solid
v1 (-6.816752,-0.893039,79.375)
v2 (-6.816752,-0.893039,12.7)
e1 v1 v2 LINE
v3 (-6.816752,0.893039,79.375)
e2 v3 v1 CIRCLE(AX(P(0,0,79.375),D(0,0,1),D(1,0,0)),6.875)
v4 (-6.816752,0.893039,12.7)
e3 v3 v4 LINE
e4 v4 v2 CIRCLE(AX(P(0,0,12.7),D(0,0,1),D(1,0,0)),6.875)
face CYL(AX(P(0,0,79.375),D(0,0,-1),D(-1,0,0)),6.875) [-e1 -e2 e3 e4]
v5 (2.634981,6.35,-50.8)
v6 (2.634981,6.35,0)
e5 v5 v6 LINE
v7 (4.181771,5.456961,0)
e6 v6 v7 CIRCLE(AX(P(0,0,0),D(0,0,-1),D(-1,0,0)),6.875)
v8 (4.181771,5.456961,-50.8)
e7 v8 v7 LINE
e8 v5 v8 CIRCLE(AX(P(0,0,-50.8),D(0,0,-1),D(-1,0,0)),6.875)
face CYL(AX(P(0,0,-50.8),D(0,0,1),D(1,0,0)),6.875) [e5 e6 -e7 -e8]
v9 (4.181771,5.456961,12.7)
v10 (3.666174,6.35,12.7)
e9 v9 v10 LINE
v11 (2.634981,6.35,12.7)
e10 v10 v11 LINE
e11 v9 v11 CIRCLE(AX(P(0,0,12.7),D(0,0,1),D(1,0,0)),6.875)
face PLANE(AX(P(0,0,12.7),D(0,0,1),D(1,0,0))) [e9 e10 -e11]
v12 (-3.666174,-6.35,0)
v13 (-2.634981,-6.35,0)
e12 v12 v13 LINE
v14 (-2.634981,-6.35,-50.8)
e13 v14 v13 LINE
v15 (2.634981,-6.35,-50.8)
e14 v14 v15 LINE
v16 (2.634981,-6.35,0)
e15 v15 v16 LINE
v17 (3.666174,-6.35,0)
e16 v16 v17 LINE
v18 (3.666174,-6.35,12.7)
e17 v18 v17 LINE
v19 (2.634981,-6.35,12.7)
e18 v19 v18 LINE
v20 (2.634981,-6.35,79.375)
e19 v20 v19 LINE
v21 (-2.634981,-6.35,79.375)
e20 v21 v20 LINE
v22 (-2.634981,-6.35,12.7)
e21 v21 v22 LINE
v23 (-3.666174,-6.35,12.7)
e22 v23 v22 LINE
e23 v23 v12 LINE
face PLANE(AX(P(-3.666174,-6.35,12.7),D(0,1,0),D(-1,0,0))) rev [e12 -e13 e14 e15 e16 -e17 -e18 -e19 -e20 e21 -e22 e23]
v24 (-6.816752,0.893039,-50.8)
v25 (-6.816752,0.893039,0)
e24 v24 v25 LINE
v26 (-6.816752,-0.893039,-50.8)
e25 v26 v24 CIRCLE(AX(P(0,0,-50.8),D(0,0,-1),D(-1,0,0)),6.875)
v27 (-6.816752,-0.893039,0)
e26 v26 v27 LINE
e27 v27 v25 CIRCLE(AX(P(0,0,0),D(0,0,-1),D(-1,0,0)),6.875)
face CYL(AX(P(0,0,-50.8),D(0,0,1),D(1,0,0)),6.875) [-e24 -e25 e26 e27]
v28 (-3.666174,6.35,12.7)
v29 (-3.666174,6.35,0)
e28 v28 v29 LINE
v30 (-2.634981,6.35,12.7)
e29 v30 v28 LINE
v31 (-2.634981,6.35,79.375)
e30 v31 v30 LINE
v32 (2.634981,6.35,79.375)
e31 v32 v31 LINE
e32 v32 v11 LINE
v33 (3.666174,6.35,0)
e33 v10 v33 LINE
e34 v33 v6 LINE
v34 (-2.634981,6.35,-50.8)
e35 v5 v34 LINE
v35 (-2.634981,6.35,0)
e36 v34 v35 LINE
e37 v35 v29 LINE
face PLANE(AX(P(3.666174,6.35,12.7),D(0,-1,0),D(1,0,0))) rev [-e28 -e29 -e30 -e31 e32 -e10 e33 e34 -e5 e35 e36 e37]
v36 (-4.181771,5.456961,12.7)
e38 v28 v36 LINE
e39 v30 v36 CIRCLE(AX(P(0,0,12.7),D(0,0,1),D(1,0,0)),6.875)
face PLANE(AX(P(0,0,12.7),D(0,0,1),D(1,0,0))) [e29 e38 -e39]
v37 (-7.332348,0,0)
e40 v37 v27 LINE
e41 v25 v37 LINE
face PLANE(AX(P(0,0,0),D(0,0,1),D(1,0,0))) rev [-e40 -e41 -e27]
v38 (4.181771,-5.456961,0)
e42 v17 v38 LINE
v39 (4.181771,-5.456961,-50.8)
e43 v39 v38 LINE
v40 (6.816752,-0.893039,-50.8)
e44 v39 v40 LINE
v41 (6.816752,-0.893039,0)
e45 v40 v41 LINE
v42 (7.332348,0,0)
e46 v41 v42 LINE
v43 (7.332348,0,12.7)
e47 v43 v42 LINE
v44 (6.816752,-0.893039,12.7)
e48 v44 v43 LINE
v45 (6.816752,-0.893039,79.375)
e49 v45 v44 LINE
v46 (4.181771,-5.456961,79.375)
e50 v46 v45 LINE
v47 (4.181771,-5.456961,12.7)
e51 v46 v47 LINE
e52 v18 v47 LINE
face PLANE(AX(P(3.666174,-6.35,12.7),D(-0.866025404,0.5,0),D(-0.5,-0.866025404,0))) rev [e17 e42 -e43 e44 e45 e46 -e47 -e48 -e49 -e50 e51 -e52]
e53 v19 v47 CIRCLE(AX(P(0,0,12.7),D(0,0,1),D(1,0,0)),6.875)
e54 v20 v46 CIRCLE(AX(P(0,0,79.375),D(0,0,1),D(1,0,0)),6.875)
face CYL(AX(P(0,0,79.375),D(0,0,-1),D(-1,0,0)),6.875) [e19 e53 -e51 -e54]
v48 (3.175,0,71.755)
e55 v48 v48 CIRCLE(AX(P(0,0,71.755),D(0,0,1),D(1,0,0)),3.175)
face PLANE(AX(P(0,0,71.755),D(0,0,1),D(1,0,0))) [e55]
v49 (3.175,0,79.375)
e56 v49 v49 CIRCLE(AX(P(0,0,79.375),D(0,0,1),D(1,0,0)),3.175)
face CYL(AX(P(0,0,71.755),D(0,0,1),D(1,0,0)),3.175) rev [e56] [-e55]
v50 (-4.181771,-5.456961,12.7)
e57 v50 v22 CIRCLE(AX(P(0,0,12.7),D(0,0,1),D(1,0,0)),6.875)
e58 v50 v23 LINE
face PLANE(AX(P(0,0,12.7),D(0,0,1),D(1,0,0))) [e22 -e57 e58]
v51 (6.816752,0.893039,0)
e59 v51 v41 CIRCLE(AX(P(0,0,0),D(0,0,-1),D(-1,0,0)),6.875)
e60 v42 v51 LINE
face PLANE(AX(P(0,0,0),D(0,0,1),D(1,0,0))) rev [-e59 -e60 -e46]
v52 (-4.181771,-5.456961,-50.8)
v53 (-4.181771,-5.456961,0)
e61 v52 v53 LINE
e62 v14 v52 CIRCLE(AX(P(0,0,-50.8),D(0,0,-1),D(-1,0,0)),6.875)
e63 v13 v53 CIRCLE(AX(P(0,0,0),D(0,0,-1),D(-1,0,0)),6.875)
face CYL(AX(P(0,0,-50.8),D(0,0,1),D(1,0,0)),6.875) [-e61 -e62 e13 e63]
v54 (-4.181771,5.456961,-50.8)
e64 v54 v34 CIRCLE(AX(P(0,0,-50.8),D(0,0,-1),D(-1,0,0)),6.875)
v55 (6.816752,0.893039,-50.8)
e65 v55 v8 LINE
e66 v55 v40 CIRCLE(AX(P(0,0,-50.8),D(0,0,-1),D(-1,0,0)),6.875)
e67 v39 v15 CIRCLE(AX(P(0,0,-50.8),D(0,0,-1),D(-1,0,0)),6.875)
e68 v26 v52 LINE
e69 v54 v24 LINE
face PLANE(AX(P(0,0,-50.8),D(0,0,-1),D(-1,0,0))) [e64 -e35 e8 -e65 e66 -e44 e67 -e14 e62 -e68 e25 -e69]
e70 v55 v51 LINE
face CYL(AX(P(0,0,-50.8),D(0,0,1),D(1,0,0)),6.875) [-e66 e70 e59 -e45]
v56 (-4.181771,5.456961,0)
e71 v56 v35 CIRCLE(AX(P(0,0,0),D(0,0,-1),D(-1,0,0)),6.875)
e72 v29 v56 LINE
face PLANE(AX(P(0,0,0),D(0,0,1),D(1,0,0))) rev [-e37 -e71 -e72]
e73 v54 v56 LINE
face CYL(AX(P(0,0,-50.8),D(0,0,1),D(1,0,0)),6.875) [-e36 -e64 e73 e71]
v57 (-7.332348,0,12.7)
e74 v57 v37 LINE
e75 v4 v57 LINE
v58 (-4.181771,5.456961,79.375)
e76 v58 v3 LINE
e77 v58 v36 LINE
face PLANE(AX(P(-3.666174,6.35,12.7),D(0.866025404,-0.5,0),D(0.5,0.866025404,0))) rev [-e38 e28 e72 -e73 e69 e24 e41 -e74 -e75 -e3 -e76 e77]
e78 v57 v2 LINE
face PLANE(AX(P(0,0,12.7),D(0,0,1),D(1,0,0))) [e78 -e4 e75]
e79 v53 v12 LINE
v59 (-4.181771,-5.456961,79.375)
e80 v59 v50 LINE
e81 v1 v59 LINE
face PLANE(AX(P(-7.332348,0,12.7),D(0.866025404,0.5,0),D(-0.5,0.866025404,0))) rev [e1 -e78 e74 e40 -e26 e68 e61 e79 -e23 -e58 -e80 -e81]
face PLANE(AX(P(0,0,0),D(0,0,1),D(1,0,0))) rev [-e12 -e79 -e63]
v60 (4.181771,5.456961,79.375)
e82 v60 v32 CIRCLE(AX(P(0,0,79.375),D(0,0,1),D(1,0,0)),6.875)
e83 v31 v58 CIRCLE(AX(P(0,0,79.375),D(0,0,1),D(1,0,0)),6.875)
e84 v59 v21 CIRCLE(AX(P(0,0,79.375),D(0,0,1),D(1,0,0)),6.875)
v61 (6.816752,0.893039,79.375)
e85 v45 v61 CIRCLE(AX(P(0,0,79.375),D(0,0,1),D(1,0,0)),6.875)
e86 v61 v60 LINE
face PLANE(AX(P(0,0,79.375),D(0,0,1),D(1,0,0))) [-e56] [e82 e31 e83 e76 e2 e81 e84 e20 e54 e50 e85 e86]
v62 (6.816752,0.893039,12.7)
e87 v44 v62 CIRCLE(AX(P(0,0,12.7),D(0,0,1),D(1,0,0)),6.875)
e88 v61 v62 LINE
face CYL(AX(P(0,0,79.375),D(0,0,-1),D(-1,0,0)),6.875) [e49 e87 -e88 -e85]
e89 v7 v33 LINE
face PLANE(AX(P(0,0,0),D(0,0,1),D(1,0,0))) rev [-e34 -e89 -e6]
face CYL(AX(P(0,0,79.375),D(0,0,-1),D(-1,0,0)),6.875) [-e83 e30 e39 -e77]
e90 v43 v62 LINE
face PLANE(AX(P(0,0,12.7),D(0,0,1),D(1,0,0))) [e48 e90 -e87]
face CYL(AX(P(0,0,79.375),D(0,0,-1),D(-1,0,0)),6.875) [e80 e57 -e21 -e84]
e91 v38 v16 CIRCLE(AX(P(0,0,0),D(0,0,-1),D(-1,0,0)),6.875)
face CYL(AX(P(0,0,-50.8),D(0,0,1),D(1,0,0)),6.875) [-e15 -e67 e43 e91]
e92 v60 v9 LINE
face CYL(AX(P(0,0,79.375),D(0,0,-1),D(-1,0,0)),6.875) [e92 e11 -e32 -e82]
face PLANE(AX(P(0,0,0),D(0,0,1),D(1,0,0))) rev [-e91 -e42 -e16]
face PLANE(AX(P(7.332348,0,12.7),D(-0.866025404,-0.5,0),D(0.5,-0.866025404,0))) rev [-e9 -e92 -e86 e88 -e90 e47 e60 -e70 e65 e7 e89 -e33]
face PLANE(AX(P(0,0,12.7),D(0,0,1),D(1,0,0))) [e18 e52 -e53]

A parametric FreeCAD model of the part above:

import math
import FreeCAD as App
import Part
import Sketcher

V = App.Vector
Q = App.Units.Quantity


def add_polygon(sketch, points):
    """Adds a closed chain of lines whose ends are joined by coincident constraints."""
    first, n = sketch.GeometryCount, len(points)
    for a, b in zip(points, points[1:] + points[:1]):
        sketch.addGeometry(Part.LineSegment(App.Vector(*a, 0), App.Vector(*b, 0)), False)
    for i in range(n):
        sketch.addConstraint(Sketcher.Constraint("Coincident", first + i, 2, first + (i + 1) % n, 1))

doc = App.newDocument("Part")
body = doc.addObject("PartDesign::Body", "Body")

sketch1 = body.newObject("Sketcher::SketchObject", "Sketch")
sketch1.AttachmentSupport = (doc.getObject("XY_Plane"), [""])
sketch1.MapMode = "FlatFace"
add_polygon(sketch1, [(4, -6), (7, 0), (4, 6), (-4, 6), (-7, 0), (-4, -6)])
sketch1.addConstraint([
    Sketcher.Constraint("Horizontal", 2),
    Sketcher.Constraint("Horizontal", 5),
    Sketcher.Constraint("Symmetric", 0, 2, 3, 2, -1, 1),
    Sketcher.Constraint("Symmetric", 1, 2, 4, 2, -1, 1),
    Sketcher.Constraint("PointOnObject", 0, 2, -1),
    Sketcher.Constraint("Parallel", 0, 3),
    Sketcher.Constraint("Vertical", 2, 2, 4, 2),
    Sketcher.Constraint("Angle", 0, Q("60 deg")),
    Sketcher.Constraint("DistanceY", 4, 2, 2, 2, Q("0.5 in")),
    Sketcher.Constraint("DistanceX", 2, 2, 2, 1, Q("7.332348 mm")),
])
pad1 = body.newObject("PartDesign::Pad", "Pad")
pad1.Profile = sketch1
pad1.Length = Q("0.5 in")

sketch2 = body.newObject("Sketcher::SketchObject", "Sketch001")
sketch2.AttachmentSupport = (doc.getObject("XY_Plane"), [""])
sketch2.MapMode = "FlatFace"
sketch2.AttachmentOffset = App.Placement(V(0, 0, 0.5 * 25.4), App.Rotation())
sketch2.addGeometry([
    Part.LineSegment(V(-6.8, -0.9, 0), V(-4.2, -5.5, 0)),
    Part.ArcOfCircle(Part.Circle(V(0, 0, 0), V(0, 0, 1), 6.9), math.radians(-127.46), math.radians(-112.54)),
    Part.LineSegment(V(-2.6, -6.3, 0), V(2.6, -6.3, 0)),
    Part.ArcOfCircle(Part.Circle(V(0, 0, 0), V(0, 0, 1), 6.9), math.radians(-67.46), math.radians(-52.54)),
    Part.LineSegment(V(4.2, -5.5, 0), V(6.8, -0.9, 0)),
    Part.ArcOfCircle(Part.Circle(V(0, 0, 0), V(0, 0, 1), 6.9), math.radians(-7.46), math.radians(7.46)),
    Part.LineSegment(V(6.8, 0.9, 0), V(4.2, 5.5, 0)),
    Part.ArcOfCircle(Part.Circle(V(0, 0, 0), V(0, 0, 1), 6.9), math.radians(52.54), math.radians(67.46)),
    Part.LineSegment(V(2.6, 6.3, 0), V(-2.6, 6.3, 0)),
    Part.ArcOfCircle(Part.Circle(V(0, 0, 0), V(0, 0, 1), 6.9), math.radians(112.54), math.radians(127.46)),
    Part.LineSegment(V(-4.2, 5.5, 0), V(-6.8, 0.9, 0)),
    Part.ArcOfCircle(Part.Circle(V(0, 0, 0), V(0, 0, 1), 6.9), math.radians(172.54), math.radians(187.46)),
], False)
sketch2.addConstraint([
    Sketcher.Constraint("Coincident", 0, 2, 1, 1),
    Sketcher.Constraint("Coincident", 1, 2, 2, 1),
    Sketcher.Constraint("Coincident", 2, 2, 3, 1),
    Sketcher.Constraint("Coincident", 3, 2, 4, 1),
    Sketcher.Constraint("Coincident", 4, 2, 5, 1),
    Sketcher.Constraint("Coincident", 5, 2, 6, 1),
    Sketcher.Constraint("Coincident", 6, 2, 7, 1),
    Sketcher.Constraint("Coincident", 7, 2, 8, 1),
    Sketcher.Constraint("Coincident", 8, 2, 9, 1),
    Sketcher.Constraint("Coincident", 9, 2, 10, 1),
    Sketcher.Constraint("Coincident", 10, 2, 11, 1),
    Sketcher.Constraint("Coincident", 11, 2, 0, 1),
    Sketcher.Constraint("Horizontal", 2),
    Sketcher.Constraint("Horizontal", 8),
    Sketcher.Constraint("Coincident", 1, 3, -1, 1),
    Sketcher.Constraint("Coincident", 3, 3, -1, 1),
    Sketcher.Constraint("Coincident", 5, 3, -1, 1),
    Sketcher.Constraint("Coincident", 7, 3, -1, 1),
    Sketcher.Constraint("Coincident", 9, 3, -1, 1),
    Sketcher.Constraint("Coincident", 11, 3, -1, 1),
    Sketcher.Constraint("Equal", 1, 3),
    Sketcher.Constraint("Equal", 3, 5),
    Sketcher.Constraint("Equal", 5, 7),
    Sketcher.Constraint("Equal", 7, 9),
    Sketcher.Constraint("Equal", 9, 11),
    Sketcher.Constraint("Parallel", 0, 6),
    Sketcher.Constraint("Parallel", 4, 10),
    Sketcher.Constraint("Horizontal", 0, 2, 3, 2),
    Sketcher.Constraint("Horizontal", 6, 2, 9, 2),
    Sketcher.Constraint("Horizontal", 5, 2, 10, 2),
    Sketcher.Constraint("Vertical", 4, 2, 5, 2),
    Sketcher.Constraint("Vertical", 2, 2, 7, 2),
    Sketcher.Constraint("Angle", 0, Q("-60 deg")),
    Sketcher.Constraint("DistanceY", 1, 2, -1, 1, Q("0.25 in")),
    Sketcher.Constraint("Radius", 1, Q("6.875 mm")),
    Sketcher.Constraint("DistanceY", 3, 2, 5, 2, Q("0.25 in")),
])
pad2 = body.newObject("PartDesign::Pad", "Pad001")
pad2.Profile = sketch2
pad2.Length = Q("2.625 in")

sketch3 = body.newObject("Sketcher::SketchObject", "Sketch002")
sketch3.AttachmentSupport = (doc.getObject("XY_Plane"), [""])
sketch3.MapMode = "FlatFace"
sketch3.addGeometry([
    Part.LineSegment(V(6.8, -0.9, 0), V(4.2, -5.5, 0)),
    Part.ArcOfCircle(Part.Circle(V(0, 0, 0), V(0, 0, 1), 6.9), math.radians(-67.46), math.radians(-52.54)),
    Part.LineSegment(V(2.6, -6.3, 0), V(-2.6, -6.3, 0)),
    Part.ArcOfCircle(Part.Circle(V(0, 0, 0), V(0, 0, 1), 6.9), math.radians(-127.46), math.radians(-112.54)),
    Part.LineSegment(V(-4.2, -5.5, 0), V(-6.8, -0.9, 0)),
    Part.ArcOfCircle(Part.Circle(V(0, 0, 0), V(0, 0, 1), 6.9), math.radians(172.54), math.radians(187.46)),
    Part.LineSegment(V(-6.8, 0.9, 0), V(-4.2, 5.5, 0)),
    Part.ArcOfCircle(Part.Circle(V(0, 0, 0), V(0, 0, 1), 6.9), math.radians(112.54), math.radians(127.46)),
    Part.LineSegment(V(-2.6, 6.3, 0), V(2.6, 6.3, 0)),
    Part.ArcOfCircle(Part.Circle(V(0, 0, 0), V(0, 0, 1), 6.9), math.radians(52.54), math.radians(67.46)),
    Part.LineSegment(V(4.2, 5.5, 0), V(6.8, 0.9, 0)),
    Part.ArcOfCircle(Part.Circle(V(0, 0, 0), V(0, 0, 1), 6.9), math.radians(-7.46), math.radians(7.46)),
], False)
sketch3.addConstraint([
    Sketcher.Constraint("Coincident", 0, 2, 1, 2),
    Sketcher.Constraint("Coincident", 1, 1, 2, 1),
    Sketcher.Constraint("Coincident", 2, 2, 3, 2),
    Sketcher.Constraint("Coincident", 3, 1, 4, 1),
    Sketcher.Constraint("Coincident", 4, 2, 5, 2),
    Sketcher.Constraint("Coincident", 5, 1, 6, 1),
    Sketcher.Constraint("Coincident", 6, 2, 7, 2),
    Sketcher.Constraint("Coincident", 7, 1, 8, 1),
    Sketcher.Constraint("Coincident", 8, 2, 9, 2),
    Sketcher.Constraint("Coincident", 9, 1, 10, 1),
    Sketcher.Constraint("Coincident", 10, 2, 11, 2),
    Sketcher.Constraint("Coincident", 11, 1, 0, 1),
    Sketcher.Constraint("Horizontal", 2),
    Sketcher.Constraint("Horizontal", 8),
    Sketcher.Constraint("Coincident", 1, 3, -1, 1),
    Sketcher.Constraint("Coincident", 3, 3, -1, 1),
    Sketcher.Constraint("Coincident", 5, 3, -1, 1),
    Sketcher.Constraint("Coincident", 7, 3, -1, 1),
    Sketcher.Constraint("Coincident", 9, 3, -1, 1),
    Sketcher.Constraint("Coincident", 11, 3, -1, 1),
    Sketcher.Constraint("Equal", 1, 3),
    Sketcher.Constraint("Equal", 3, 5),
    Sketcher.Constraint("Equal", 5, 7),
    Sketcher.Constraint("Equal", 7, 9),
    Sketcher.Constraint("Equal", 9, 11),
    Sketcher.Constraint("Parallel", 0, 6),
    Sketcher.Constraint("Parallel", 4, 10),
    Sketcher.Constraint("Horizontal", 0, 2, 3, 1),
    Sketcher.Constraint("Horizontal", 6, 2, 9, 1),
    Sketcher.Constraint("Horizontal", 5, 1, 10, 2),
    Sketcher.Constraint("Vertical", 4, 2, 5, 1),
    Sketcher.Constraint("Vertical", 2, 2, 7, 1),
    Sketcher.Constraint("Angle", 0, Q("-120 deg")),
    Sketcher.Constraint("DistanceY", 1, 1, -1, 1, Q("0.25 in")),
    Sketcher.Constraint("Radius", 1, Q("6.875 mm")),
    Sketcher.Constraint("DistanceY", 3, 1, 5, 1, Q("0.25 in")),
])
pad3 = body.newObject("PartDesign::Pad", "Pad002")
pad3.Profile = sketch3
pad3.Length = Q("2 in")
pad3.Reversed = True

sketch4 = body.newObject("Sketcher::SketchObject", "Sketch003")
sketch4.AttachmentSupport = (doc.getObject("XY_Plane"), [""])
sketch4.MapMode = "FlatFace"
sketch4.AttachmentOffset = App.Placement(V(0, 0, 3.125 * 25.4), App.Rotation())
sketch4.addGeometry(Part.Circle(V(0, 0, 0), V(0, 0, 1), 3.2), False)
sketch4.addConstraint([
    Sketcher.Constraint("Coincident", 0, 3, -1, 1),
    Sketcher.Constraint("Diameter", 0, Q("0.25 in")),
])
pocket1 = body.newObject("PartDesign::Pocket", "Pocket")
pocket1.Profile = sketch4
pocket1.Length = Q("0.3 in")

doc.recompute()
